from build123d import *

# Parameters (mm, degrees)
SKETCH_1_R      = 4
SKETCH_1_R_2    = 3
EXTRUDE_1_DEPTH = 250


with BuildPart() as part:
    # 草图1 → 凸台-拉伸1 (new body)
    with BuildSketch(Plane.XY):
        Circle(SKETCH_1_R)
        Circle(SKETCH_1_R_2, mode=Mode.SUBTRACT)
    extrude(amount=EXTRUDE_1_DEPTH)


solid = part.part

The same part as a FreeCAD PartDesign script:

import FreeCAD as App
import Part
import Sketcher

doc = App.newDocument("Part")
body = doc.addObject("PartDesign::Body", "Body")

sketch1 = doc.addObject("Sketcher::SketchObject", "Sketch")
body.addObject(sketch1)
sketch1.AttachmentSupport = (doc.XY_Plane, [""])
sketch1.MapMode = "FlatFace"
sketch1.addGeometry([
    Part.Circle(App.Vector(0, 0, 0), App.Vector(0, 0, 1), 4),
    Part.Circle(App.Vector(0, 0, 0), App.Vector(0, 0, 1), 3),
], False)
sketch1.addConstraint([
    Sketcher.Constraint("Coincident", 0, 3, -1, 1),
    Sketcher.Constraint("Coincident", 1, 3, -1, 1),
    Sketcher.Constraint("Diameter", 0, 8.0),
    Sketcher.Constraint("Diameter", 1, 6.0),
])
pad1 = doc.addObject("PartDesign::Pad", "Pad")
body.addObject(pad1)
pad1.Profile = sketch1
pad1.Length = 250

doc.recompute()
